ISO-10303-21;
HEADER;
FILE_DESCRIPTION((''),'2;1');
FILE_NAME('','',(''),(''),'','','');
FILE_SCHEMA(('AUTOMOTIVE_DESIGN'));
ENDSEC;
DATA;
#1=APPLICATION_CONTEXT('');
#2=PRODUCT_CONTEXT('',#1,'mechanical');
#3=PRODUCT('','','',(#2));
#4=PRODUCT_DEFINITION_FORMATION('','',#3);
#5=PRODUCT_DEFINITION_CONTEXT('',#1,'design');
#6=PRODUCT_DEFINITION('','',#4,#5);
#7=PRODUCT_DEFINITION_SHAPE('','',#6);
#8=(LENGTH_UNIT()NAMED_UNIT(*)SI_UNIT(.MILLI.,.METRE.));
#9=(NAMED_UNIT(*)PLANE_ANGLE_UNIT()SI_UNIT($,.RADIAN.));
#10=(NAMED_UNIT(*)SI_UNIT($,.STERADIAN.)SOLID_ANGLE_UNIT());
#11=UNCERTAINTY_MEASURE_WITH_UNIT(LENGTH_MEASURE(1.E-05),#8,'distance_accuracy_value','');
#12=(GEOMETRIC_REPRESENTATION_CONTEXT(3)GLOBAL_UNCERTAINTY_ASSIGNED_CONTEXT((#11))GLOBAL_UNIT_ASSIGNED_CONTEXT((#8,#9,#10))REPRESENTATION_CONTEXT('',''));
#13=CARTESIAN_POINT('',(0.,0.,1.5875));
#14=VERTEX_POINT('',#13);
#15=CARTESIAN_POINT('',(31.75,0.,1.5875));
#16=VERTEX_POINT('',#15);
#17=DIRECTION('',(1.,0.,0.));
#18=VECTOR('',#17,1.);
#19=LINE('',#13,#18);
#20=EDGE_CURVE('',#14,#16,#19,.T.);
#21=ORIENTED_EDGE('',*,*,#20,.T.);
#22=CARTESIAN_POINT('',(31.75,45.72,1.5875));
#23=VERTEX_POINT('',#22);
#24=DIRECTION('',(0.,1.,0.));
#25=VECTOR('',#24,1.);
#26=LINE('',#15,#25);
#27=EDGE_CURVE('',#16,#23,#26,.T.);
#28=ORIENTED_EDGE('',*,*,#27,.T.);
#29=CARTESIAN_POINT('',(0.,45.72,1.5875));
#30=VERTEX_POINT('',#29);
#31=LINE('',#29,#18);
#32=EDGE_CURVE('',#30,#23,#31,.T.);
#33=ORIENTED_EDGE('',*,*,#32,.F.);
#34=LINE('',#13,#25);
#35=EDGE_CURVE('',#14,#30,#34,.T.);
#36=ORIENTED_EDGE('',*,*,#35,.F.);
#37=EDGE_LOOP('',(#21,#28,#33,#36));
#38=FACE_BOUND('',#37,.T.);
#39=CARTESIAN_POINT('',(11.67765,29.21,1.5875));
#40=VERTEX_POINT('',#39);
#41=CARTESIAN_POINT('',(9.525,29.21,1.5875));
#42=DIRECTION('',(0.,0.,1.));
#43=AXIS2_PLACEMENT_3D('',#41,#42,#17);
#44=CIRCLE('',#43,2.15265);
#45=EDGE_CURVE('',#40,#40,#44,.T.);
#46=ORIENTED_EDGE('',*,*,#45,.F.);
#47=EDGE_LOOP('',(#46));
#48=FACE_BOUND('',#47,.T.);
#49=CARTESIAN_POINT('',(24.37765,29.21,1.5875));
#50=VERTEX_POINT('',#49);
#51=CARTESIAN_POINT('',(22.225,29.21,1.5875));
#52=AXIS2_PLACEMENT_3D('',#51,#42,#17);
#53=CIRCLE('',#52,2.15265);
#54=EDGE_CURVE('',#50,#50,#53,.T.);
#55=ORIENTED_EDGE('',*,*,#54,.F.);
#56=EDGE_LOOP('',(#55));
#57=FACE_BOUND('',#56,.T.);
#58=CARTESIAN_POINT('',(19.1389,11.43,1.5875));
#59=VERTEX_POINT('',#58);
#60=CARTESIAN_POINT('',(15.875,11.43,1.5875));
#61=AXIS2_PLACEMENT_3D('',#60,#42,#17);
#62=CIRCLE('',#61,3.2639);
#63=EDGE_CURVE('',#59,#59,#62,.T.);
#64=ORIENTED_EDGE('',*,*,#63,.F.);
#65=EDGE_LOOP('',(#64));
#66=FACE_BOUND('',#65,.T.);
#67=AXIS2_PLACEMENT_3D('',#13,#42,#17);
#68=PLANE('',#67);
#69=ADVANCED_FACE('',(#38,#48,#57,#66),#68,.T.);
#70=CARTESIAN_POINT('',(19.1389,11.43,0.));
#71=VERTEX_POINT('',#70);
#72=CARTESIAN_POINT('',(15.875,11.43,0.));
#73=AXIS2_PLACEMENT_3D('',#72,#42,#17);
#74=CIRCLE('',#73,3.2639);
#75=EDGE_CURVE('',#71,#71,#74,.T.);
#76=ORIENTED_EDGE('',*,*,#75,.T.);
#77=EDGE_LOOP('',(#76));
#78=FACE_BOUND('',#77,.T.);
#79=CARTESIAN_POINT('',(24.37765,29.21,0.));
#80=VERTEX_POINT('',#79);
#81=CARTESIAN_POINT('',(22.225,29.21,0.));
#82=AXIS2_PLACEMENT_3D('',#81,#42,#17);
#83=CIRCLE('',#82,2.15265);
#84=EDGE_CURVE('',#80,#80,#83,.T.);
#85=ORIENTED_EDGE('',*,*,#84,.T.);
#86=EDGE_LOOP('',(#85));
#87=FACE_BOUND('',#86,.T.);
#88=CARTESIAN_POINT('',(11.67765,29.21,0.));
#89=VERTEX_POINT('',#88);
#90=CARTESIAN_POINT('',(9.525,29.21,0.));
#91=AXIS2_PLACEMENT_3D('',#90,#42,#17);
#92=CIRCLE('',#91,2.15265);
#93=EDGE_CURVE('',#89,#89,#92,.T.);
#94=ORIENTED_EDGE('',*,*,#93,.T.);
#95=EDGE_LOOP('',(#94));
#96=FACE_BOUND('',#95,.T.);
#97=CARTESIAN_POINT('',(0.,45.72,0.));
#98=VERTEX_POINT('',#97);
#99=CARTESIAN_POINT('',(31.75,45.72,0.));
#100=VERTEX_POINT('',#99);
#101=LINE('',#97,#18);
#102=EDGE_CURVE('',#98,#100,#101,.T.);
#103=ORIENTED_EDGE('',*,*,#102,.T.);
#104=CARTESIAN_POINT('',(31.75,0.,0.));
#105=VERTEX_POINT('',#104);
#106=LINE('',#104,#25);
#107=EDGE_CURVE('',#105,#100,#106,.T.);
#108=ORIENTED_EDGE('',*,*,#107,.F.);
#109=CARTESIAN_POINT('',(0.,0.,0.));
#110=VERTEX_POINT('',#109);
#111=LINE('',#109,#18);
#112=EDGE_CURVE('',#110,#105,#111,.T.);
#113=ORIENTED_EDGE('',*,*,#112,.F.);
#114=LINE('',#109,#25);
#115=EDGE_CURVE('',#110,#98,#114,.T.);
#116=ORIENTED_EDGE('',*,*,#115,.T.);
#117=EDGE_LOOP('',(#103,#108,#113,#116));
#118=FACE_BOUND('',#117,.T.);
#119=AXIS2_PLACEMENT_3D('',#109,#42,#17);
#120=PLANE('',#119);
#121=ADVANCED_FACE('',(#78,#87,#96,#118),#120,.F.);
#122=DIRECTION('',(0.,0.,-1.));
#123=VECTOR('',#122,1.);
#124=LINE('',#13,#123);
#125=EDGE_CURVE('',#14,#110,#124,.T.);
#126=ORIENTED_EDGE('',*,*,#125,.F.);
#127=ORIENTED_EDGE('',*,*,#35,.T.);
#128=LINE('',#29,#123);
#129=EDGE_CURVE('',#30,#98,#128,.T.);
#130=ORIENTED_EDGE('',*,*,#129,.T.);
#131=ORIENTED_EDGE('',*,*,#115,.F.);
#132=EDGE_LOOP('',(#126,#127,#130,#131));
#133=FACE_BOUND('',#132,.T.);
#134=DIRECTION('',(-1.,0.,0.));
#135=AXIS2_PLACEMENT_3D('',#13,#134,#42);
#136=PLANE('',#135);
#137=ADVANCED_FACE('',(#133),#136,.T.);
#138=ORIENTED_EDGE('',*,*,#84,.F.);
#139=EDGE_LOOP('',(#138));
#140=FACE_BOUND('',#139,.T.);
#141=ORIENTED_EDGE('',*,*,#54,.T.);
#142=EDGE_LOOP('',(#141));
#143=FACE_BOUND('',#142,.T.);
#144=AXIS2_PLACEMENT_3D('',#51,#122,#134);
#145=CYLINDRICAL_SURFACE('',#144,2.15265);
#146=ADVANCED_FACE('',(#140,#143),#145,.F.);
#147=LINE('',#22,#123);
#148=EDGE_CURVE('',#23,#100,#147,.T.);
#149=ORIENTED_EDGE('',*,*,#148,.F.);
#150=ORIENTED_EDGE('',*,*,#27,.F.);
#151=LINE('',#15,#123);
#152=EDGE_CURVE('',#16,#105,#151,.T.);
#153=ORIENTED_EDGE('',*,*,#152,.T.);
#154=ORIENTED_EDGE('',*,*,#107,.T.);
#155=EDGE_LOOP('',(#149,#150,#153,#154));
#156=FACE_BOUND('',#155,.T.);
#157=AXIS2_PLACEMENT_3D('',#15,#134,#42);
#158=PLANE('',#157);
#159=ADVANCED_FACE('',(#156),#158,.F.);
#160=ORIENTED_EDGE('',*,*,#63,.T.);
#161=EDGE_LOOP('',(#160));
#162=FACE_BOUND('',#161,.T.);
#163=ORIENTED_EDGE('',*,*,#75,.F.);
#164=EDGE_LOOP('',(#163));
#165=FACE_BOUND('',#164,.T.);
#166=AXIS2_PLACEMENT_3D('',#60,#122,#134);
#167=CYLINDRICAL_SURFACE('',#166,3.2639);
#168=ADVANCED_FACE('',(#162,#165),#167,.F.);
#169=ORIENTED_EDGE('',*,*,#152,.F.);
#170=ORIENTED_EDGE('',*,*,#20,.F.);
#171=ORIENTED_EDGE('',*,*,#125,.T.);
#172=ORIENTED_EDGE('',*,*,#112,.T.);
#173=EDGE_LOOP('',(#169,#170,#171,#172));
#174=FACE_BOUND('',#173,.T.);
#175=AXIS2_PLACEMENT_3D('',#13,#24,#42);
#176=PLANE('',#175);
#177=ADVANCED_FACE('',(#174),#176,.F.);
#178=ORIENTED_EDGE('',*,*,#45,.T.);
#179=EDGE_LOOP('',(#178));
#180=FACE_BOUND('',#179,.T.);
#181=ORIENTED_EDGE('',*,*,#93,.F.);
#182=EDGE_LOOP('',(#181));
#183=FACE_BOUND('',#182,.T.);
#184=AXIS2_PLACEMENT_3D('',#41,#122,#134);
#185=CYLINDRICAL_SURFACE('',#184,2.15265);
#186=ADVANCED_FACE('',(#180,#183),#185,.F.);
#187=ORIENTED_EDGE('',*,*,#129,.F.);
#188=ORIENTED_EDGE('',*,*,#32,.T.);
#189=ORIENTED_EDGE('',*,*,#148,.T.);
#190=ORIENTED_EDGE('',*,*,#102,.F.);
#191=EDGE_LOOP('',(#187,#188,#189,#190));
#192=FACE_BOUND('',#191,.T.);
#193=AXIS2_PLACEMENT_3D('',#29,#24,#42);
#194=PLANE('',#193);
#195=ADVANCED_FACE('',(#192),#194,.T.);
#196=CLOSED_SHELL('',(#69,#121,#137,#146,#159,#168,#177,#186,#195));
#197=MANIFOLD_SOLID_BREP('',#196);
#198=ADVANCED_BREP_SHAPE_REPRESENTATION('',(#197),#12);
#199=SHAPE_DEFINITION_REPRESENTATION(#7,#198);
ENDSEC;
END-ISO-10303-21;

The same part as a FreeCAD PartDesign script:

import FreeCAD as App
import Part
import Sketcher

V = App.Vector
Q = App.Units.Quantity


def add_polygon(sketch, points):
    """Adds a closed chain of lines whose ends are joined by coincident constraints."""
    first, n = sketch.GeometryCount, len(points)
    for a, b in zip(points, points[1:] + points[:1]):
        sketch.addGeometry(Part.LineSegment(App.Vector(*a, 0), App.Vector(*b, 0)), False)
    for i in range(n):
        sketch.addConstraint(Sketcher.Constraint("Coincident", first + i, 2, first + (i + 1) % n, 1))

doc = App.newDocument("Part")
body = doc.addObject("PartDesign::Body", "Body")

sketch1 = doc.addObject("Sketcher::SketchObject", "Sketch")
body.addObject(sketch1)
sketch1.AttachmentSupport = (doc.XY_Plane, [""])
sketch1.MapMode = "FlatFace"
add_polygon(sketch1, [(0, 45.7), (0, 0), (31.8, 0), (31.8, 45.7)])
sketch1.addGeometry(Part.Circle(V(15.9, 11.4, 0), V(0, 0, 1), 3.3), False)
sketch1.addGeometry(Part.Circle(V(9.5, 29.2, 0), V(0, 0, 1), 2.2), False)
sketch1.addGeometry(Part.Circle(V(22.2, 29.2, 0), V(0, 0, 1), 2.2), False)
sketch1.addConstraint([
    Sketcher.Constraint("Vertical", 0),
    Sketcher.Constraint("Horizontal", 1),
    Sketcher.Constraint("Vertical", 2),
    Sketcher.Constraint("Horizontal", 3),
    Sketcher.Constraint("Coincident", 0, 2, -1, 1),
    Sketcher.Constraint("Equal", 5, 6),
    Sketcher.Constraint("Horizontal", 5, 3, 6, 3),
    Sketcher.Constraint("Diameter", 4, Q("0.257 in")),
    Sketcher.Constraint("DistanceY", 0, 2, 0, 1, Q("1.8 in")),
    Sketcher.Constraint("Diameter", 5, Q("0.1695 in")),
    Sketcher.Constraint("DistanceX", 1, 1, 1, 2, Q("1.25 in")),
    Sketcher.Constraint("DistanceY", 4, 3, 5, 3, Q("0.7 in")),
    Sketcher.Constraint("DistanceX", 5, 3, 6, 3, Q("0.5 in")),
    Sketcher.Constraint("DistanceY", -1, 1, 4, 3, Q("0.45 in")),
    Sketcher.Constraint("DistanceX", 5, 3, 4, 3, Q("0.25 in")),
    Sketcher.Constraint("DistanceX", -1, 1, 4, 3, Q("0.625 in")),
])
pad1 = doc.addObject("PartDesign::Pad", "Pad")
body.addObject(pad1)
pad1.Profile = sketch1
pad1.Length = Q("0.0625 in")

doc.recompute()
